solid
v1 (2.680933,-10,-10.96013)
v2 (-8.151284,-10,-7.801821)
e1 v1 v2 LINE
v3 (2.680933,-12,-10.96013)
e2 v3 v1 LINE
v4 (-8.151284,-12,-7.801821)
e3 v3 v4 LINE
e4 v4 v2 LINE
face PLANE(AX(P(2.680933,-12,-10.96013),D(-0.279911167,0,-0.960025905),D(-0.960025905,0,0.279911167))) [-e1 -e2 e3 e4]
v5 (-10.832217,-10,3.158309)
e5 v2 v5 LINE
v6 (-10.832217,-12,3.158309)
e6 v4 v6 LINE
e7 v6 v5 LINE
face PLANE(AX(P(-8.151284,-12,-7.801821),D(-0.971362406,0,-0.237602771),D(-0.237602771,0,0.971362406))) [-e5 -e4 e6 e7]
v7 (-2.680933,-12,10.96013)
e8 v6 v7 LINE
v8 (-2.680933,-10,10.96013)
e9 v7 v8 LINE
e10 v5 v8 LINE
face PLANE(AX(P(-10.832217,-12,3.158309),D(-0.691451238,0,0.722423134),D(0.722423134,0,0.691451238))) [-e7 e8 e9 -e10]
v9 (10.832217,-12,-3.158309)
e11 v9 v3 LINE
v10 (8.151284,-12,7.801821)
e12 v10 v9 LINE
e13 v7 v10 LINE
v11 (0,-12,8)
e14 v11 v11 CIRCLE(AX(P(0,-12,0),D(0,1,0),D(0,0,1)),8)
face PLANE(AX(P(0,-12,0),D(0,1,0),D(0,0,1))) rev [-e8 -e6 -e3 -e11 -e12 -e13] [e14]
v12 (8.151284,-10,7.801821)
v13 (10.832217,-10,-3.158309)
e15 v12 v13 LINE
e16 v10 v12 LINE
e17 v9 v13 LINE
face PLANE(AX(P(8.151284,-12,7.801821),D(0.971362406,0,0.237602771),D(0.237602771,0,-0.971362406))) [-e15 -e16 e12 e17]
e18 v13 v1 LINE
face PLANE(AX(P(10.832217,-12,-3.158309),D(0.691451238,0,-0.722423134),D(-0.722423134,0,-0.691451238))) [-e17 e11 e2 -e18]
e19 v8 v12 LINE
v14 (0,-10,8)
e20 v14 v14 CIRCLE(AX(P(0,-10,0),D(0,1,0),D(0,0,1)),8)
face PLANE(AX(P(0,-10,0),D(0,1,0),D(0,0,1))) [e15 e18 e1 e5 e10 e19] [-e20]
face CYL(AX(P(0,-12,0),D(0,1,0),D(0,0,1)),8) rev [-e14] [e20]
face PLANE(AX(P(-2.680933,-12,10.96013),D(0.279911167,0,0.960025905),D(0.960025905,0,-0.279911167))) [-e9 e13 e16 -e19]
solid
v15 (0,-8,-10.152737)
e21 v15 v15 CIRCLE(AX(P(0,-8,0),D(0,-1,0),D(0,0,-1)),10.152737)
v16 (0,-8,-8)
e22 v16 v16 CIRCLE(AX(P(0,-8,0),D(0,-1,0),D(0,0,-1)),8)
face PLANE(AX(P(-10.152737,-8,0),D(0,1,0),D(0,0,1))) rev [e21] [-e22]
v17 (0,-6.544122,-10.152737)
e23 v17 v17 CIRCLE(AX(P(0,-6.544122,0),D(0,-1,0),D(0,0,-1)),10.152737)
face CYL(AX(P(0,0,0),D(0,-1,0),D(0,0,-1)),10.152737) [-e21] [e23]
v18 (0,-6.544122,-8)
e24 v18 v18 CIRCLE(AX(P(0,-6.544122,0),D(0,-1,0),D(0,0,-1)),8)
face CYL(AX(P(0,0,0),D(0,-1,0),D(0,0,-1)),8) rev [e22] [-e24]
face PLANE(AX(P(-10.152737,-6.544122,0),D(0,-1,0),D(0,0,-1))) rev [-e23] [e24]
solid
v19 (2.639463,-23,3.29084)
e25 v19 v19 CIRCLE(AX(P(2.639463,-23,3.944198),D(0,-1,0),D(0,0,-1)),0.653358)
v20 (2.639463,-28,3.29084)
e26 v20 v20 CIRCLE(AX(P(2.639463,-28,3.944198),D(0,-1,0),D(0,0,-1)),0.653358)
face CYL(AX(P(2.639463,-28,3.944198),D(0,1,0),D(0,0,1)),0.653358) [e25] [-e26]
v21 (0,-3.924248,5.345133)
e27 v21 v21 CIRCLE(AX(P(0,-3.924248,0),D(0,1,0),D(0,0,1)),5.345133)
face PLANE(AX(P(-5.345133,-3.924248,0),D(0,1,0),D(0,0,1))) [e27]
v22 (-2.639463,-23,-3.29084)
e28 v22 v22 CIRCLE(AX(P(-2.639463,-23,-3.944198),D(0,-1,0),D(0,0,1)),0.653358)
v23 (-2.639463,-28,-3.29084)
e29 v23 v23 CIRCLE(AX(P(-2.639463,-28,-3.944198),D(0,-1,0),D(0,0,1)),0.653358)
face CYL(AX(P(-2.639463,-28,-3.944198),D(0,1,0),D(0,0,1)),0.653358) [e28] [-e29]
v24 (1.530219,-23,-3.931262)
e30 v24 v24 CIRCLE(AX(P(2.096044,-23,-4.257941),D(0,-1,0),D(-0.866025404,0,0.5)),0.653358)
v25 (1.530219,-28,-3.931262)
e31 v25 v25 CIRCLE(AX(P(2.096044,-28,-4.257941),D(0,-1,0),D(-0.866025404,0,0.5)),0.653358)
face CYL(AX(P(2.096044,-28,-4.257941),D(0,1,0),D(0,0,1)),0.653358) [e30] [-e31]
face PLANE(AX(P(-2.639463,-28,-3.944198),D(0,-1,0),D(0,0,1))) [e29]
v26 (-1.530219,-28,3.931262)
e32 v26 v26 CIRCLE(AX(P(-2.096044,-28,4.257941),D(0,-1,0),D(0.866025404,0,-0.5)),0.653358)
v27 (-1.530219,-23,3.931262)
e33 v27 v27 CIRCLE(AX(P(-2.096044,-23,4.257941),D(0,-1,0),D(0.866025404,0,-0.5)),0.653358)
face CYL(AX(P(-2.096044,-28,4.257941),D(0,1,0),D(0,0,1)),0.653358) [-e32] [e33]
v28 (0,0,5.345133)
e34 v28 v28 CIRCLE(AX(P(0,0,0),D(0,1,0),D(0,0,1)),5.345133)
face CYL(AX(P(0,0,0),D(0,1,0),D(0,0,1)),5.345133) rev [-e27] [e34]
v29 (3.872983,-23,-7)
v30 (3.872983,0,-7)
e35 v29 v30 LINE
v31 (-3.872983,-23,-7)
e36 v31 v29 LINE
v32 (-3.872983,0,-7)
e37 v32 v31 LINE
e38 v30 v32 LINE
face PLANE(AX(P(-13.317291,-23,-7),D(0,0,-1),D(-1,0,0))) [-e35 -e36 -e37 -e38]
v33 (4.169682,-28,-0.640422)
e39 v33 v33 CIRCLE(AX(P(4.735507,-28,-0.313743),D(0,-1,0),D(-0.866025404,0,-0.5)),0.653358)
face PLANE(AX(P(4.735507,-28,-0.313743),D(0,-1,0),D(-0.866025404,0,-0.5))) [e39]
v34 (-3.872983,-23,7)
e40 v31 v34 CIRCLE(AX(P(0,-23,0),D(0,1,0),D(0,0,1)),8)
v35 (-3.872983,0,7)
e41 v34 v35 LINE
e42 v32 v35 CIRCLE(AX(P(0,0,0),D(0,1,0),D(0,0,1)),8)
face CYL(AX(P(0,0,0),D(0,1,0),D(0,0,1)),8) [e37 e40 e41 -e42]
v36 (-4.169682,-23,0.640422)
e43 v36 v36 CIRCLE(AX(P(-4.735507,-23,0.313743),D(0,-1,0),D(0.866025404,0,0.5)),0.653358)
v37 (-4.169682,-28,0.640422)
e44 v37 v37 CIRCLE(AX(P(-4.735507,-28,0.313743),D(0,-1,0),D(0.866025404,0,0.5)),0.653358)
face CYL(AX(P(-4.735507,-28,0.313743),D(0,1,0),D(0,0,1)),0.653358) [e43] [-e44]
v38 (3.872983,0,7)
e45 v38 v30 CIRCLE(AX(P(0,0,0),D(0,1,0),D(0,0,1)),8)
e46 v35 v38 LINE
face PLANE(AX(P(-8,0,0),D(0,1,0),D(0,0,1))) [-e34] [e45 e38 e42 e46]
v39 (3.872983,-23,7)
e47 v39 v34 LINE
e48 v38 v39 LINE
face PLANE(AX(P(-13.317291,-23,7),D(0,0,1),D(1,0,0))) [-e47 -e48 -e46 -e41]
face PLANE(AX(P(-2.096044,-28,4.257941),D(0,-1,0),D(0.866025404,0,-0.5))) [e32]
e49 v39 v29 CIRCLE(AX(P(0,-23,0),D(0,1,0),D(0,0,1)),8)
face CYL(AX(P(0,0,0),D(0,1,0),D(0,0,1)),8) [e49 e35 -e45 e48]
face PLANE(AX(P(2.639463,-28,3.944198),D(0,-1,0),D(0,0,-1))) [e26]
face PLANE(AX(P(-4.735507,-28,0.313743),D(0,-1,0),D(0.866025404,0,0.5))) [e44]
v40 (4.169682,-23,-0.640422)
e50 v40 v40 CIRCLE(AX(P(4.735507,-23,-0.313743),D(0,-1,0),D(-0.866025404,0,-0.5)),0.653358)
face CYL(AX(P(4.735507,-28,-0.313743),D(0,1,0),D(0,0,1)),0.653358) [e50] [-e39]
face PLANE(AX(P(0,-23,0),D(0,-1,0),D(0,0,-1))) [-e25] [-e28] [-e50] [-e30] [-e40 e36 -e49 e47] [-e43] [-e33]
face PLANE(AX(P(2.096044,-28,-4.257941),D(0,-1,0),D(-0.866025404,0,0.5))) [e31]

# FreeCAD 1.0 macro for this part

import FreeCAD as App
import Part
import Sketcher
from FreeCAD import Vector
Q = App.Units.Quantity

doc = App.newDocument("Part")
body = doc.addObject("PartDesign::Body", "Body")

# Sketch on XY plane
sketch1 = body.newObject("Sketcher::SketchObject", "Sketch")
sketch1.AttachmentSupport = (doc.getObject("XY_Plane"), [""])
sketch1.MapMode = "FlatFace"
sketch1.addGeometry(Part.LineSegment(Vector(-5.3, 0, 0), Vector(-8, 0, 0)), False)
sketch1.addGeometry(Part.LineSegment(Vector(-8, 0, 0), Vector(-8, -23, 0)), False)
sketch1.addGeometry(Part.LineSegment(Vector(-8, -23, 0), Vector(0, -23, 0)), False)
sketch1.addGeometry(Part.LineSegment(Vector(0, -23, 0), Vector(0, -3.9, 0)), False)
sketch1.addGeometry(Part.LineSegment(Vector(0, -3.9, 0), Vector(-5.3, -3.9, 0)), False)
sketch1.addGeometry(Part.LineSegment(Vector(-5.3, -3.9, 0), Vector(-5.3, 0, 0)), False)
sketch1.addConstraint(Sketcher.Constraint("Coincident", 0, 2, 1, 1))
sketch1.addConstraint(Sketcher.Constraint("Coincident", 1, 2, 2, 1))
sketch1.addConstraint(Sketcher.Constraint("Coincident", 2, 2, 3, 1))
sketch1.addConstraint(Sketcher.Constraint("Coincident", 3, 2, 4, 1))
sketch1.addConstraint(Sketcher.Constraint("Coincident", 4, 2, 5, 1))
sketch1.addConstraint(Sketcher.Constraint("Coincident", 5, 2, 0, 1))
sketch1.addConstraint(Sketcher.Constraint("Horizontal", 0))
sketch1.addConstraint(Sketcher.Constraint("Vertical", 1))
sketch1.addConstraint(Sketcher.Constraint("Horizontal", 2))
sketch1.addConstraint(Sketcher.Constraint("Vertical", 3))
sketch1.addConstraint(Sketcher.Constraint("Horizontal", 4))
sketch1.addConstraint(Sketcher.Constraint("Vertical", 5))
sketch1.addConstraint(Sketcher.Constraint("PointOnObject", 0, 2, -1))
sketch1.addConstraint(Sketcher.Constraint("PointOnObject", 2, 2, -2))
sketch1.addConstraint(Sketcher.Constraint("DistanceX", 2, 1, 2, 2, Q("8 mm")))
sketch1.addConstraint(Sketcher.Constraint("DistanceY", 1, 2, 1, 1, Q("23 mm")))
sketch1.addConstraint(Sketcher.Constraint("DistanceX", 0, 2, 0, 1, Q("2.654867 mm")))
sketch1.addConstraint(Sketcher.Constraint("DistanceY", 3, 1, 3, 2, Q("19.075752 mm")))
revolution = body.newObject("PartDesign::Revolution", "Revolution")
revolution.Profile = sketch1
revolution.ReferenceAxis = (sketch1, ["V_Axis"])
revolution.Angle = 360

# Sketch on XZ plane
sketch2 = body.newObject("Sketcher::SketchObject", "Sketch001")
sketch2.AttachmentSupport = (doc.getObject("XZ_Plane"), [""])
sketch2.MapMode = "FlatFace"
sketch2.addGeometry(Part.LineSegment(Vector(-22, -15, 0), Vector(-22, 15, 0)), False)
sketch2.addGeometry(Part.LineSegment(Vector(-22, 15, 0), Vector(22, 15, 0)), False)
sketch2.addGeometry(Part.LineSegment(Vector(22, 15, 0), Vector(22, -15, 0)), False)
sketch2.addGeometry(Part.LineSegment(Vector(22, -15, 0), Vector(-22, -15, 0)), False)
sketch2.addGeometry(Part.LineSegment(Vector(13, 7, 0), Vector(-13, 7, 0)), False)
sketch2.addGeometry(Part.LineSegment(Vector(-13, 7, 0), Vector(-13, -7, 0)), False)
sketch2.addGeometry(Part.LineSegment(Vector(-13, -7, 0), Vector(13, -7, 0)), False)
sketch2.addGeometry(Part.LineSegment(Vector(13, -7, 0), Vector(13, 7, 0)), False)
sketch2.addConstraint(Sketcher.Constraint("Coincident", 0, 2, 1, 1))
sketch2.addConstraint(Sketcher.Constraint("Coincident", 1, 2, 2, 1))
sketch2.addConstraint(Sketcher.Constraint("Coincident", 2, 2, 3, 1))
sketch2.addConstraint(Sketcher.Constraint("Coincident", 3, 2, 0, 1))
sketch2.addConstraint(Sketcher.Constraint("Coincident", 4, 2, 5, 1))
sketch2.addConstraint(Sketcher.Constraint("Coincident", 5, 2, 6, 1))
sketch2.addConstraint(Sketcher.Constraint("Coincident", 6, 2, 7, 1))
sketch2.addConstraint(Sketcher.Constraint("Coincident", 7, 2, 4, 1))
sketch2.addConstraint(Sketcher.Constraint("Vertical", 0))
sketch2.addConstraint(Sketcher.Constraint("Horizontal", 1))
sketch2.addConstraint(Sketcher.Constraint("Vertical", 2))
sketch2.addConstraint(Sketcher.Constraint("Horizontal", 3))
sketch2.addConstraint(Sketcher.Constraint("Horizontal", 4))
sketch2.addConstraint(Sketcher.Constraint("Vertical", 5))
sketch2.addConstraint(Sketcher.Constraint("Horizontal", 6))
sketch2.addConstraint(Sketcher.Constraint("Vertical", 7))
sketch2.addConstraint(Sketcher.Constraint("Symmetric", 0, 2, 2, 2, -1, 1))
sketch2.addConstraint(Sketcher.Constraint("Symmetric", 4, 2, 6, 2, -1, 1))
sketch2.addConstraint(Sketcher.Constraint("DistanceY", 5, 2, 5, 1, Q("14 mm")))
sketch2.addConstraint(Sketcher.Constraint("DistanceX", 1, 1, 1, 2, Q("44.390969 mm")))
sketch2.addConstraint(Sketcher.Constraint("DistanceX", 4, 2, 4, 1, Q("26.634581 mm")))
sketch2.addConstraint(Sketcher.Constraint("DistanceY", 0, 1, 0, 2, Q("30.096734 mm")))
pocket1 = body.newObject("PartDesign::Pocket", "Pocket")
pocket1.Profile = sketch2
pocket1.Type = "ThroughAll"
pocket1.Reversed = True

# Sketch on XZ plane
sketch3 = body.newObject("Sketcher::SketchObject", "Sketch002")
sketch3.AttachmentSupport = (doc.getObject("XZ_Plane"), [""])
sketch3.MapMode = "FlatFace"
sketch3.AttachmentOffset = App.Placement(Vector(0, 0, 23), App.Rotation())
sketch3.addGeometry(Part.Circle(Vector(2.6, 3.9, 0), Vector(0, 0, 1), 0.7), False)
sketch3.addConstraint(Sketcher.Constraint("Diameter", 0, Q("1.306715 mm")))
sketch3.addConstraint(Sketcher.Constraint("DistanceX", -1, 1, 0, 3, Q("2.639463 mm")))
sketch3.addConstraint(Sketcher.Constraint("DistanceY", -1, 1, 0, 3, Q("3.944198 mm")))
pad1 = body.newObject("PartDesign::Pad", "Pad")
pad1.Profile = sketch3
pad1.Length = 5
doc.recompute()

polarpattern = body.newObject("PartDesign::PolarPattern", "PolarPattern")
polarpattern.Originals = [pad1]
polarpattern.Axis = (doc.getObject("Y_Axis"), [""])
polarpattern.Angle = 360
polarpattern.Occurrences = 6
body.Tip = polarpattern
body2 = doc.addObject("PartDesign::Body", "Body001")

# Sketch on XY plane
sketch4 = body2.newObject("Sketcher::SketchObject", "Sketch003")
sketch4.AttachmentSupport = (doc.getObject("XY_Plane001"), [""])
sketch4.MapMode = "FlatFace"
sketch4.addGeometry(Part.LineSegment(Vector(-10.2, -6.5, 0), Vector(-10.2, -8, 0)), False)
sketch4.addGeometry(Part.LineSegment(Vector(-10.2, -8, 0), Vector(-8, -8, 0)), False)
sketch4.addGeometry(Part.LineSegment(Vector(-8, -8, 0), Vector(-8, -6.5, 0)), False)
sketch4.addGeometry(Part.LineSegment(Vector(-8, -6.5, 0), Vector(-10.2, -6.5, 0)), False)
sketch4.addConstraint(Sketcher.Constraint("Coincident", 0, 2, 1, 1))
sketch4.addConstraint(Sketcher.Constraint("Coincident", 1, 2, 2, 1))
sketch4.addConstraint(Sketcher.Constraint("Coincident", 2, 2, 3, 1))
sketch4.addConstraint(Sketcher.Constraint("Coincident", 3, 2, 0, 1))
sketch4.addConstraint(Sketcher.Constraint("Vertical", 0))
sketch4.addConstraint(Sketcher.Constraint("Horizontal", 1))
sketch4.addConstraint(Sketcher.Constraint("Vertical", 2))
sketch4.addConstraint(Sketcher.Constraint("Horizontal", 3))
sketch4.addConstraint(Sketcher.Constraint("DistanceY", 0, 2, -1, 1, Q("8 mm")))
sketch4.addConstraint(Sketcher.Constraint("DistanceX", 1, 2, -1, 1, Q("8 mm")))
sketch4.addConstraint(Sketcher.Constraint("DistanceX", 1, 1, 1, 2, Q("2.152737 mm")))
sketch4.addConstraint(Sketcher.Constraint("DistanceY", 0, 2, 0, 1, Q("1.455878 mm")))
revolution2 = body2.newObject("PartDesign::Revolution", "Revolution001")
revolution2.Profile = sketch4
revolution2.ReferenceAxis = (sketch4, ["V_Axis"])
revolution2.Angle = 360
body3 = doc.addObject("PartDesign::Body", "Body002")

# Sketch on XZ plane
sketch5 = body3.newObject("Sketcher::SketchObject", "Sketch004")
sketch5.AttachmentSupport = (doc.getObject("XZ_Plane002"), [""])
sketch5.MapMode = "FlatFace"
sketch5.AttachmentOffset = App.Placement(Vector(0, 0, 10), App.Rotation())
sketch5.addGeometry(Part.LineSegment(Vector(11, -3, 0), Vector(3, -11, 0)), False)
sketch5.addGeometry(Part.LineSegment(Vector(3, -11, 0), Vector(-8, -8, 0)), False)
sketch5.addGeometry(Part.LineSegment(Vector(-8, -8, 0), Vector(-11, 3, 0)), False)
sketch5.addGeometry(Part.LineSegment(Vector(-11, 3, 0), Vector(-3, 11, 0)), False)
sketch5.addGeometry(Part.LineSegment(Vector(-3, 11, 0), Vector(8, 8, 0)), False)
sketch5.addGeometry(Part.LineSegment(Vector(8, 8, 0), Vector(11, -3, 0)), False)
sketch5.addGeometry(Part.Circle(Vector(0, 0, 0), Vector(0, 0, 1), 8), False)
sketch5.addConstraint(Sketcher.Constraint("Coincident", 0, 2, 1, 1))
sketch5.addConstraint(Sketcher.Constraint("Coincident", 1, 2, 2, 1))
sketch5.addConstraint(Sketcher.Constraint("Coincident", 2, 2, 3, 1))
sketch5.addConstraint(Sketcher.Constraint("Coincident", 3, 2, 4, 1))
sketch5.addConstraint(Sketcher.Constraint("Coincident", 4, 2, 5, 1))
sketch5.addConstraint(Sketcher.Constraint("Coincident", 5, 2, 0, 1))
sketch5.addConstraint(Sketcher.Constraint("Coincident", 6, 3, -1, 1))
sketch5.addConstraint(Sketcher.Constraint("Symmetric", 0, 2, 3, 2, -1, 1))
sketch5.addConstraint(Sketcher.Constraint("Symmetric", 1, 2, 4, 2, -1, 1))
sketch5.addConstraint(Sketcher.Constraint("Symmetric", 2, 2, 5, 2, -1, 1))
sketch5.addConstraint(Sketcher.Constraint("Equal", 0, 1))
sketch5.addConstraint(Sketcher.Constraint("Equal", 1, 2))
sketch5.addConstraint(Sketcher.Constraint("Diameter", 6, Q("16 mm")))
sketch5.addConstraint(Sketcher.Constraint("DistanceX", 2, 2, 4, 2, Q("18.983502 mm")))
sketch5.addConstraint(Sketcher.Constraint("DistanceY", 0, 2, -1, 1, Q("10.96013 mm")))
sketch5.addConstraint(Sketcher.Constraint("DistanceY", 1, 2, -1, 1, Q("7.801821 mm")))
sketch5.addConstraint(Sketcher.Constraint("DistanceY", -1, 1, 2, 2, Q("3.158309 mm")))
pad2 = body3.newObject("PartDesign::Pad", "Pad001")
pad2.Profile = sketch5
pad2.Length = 2

doc.recompute()
